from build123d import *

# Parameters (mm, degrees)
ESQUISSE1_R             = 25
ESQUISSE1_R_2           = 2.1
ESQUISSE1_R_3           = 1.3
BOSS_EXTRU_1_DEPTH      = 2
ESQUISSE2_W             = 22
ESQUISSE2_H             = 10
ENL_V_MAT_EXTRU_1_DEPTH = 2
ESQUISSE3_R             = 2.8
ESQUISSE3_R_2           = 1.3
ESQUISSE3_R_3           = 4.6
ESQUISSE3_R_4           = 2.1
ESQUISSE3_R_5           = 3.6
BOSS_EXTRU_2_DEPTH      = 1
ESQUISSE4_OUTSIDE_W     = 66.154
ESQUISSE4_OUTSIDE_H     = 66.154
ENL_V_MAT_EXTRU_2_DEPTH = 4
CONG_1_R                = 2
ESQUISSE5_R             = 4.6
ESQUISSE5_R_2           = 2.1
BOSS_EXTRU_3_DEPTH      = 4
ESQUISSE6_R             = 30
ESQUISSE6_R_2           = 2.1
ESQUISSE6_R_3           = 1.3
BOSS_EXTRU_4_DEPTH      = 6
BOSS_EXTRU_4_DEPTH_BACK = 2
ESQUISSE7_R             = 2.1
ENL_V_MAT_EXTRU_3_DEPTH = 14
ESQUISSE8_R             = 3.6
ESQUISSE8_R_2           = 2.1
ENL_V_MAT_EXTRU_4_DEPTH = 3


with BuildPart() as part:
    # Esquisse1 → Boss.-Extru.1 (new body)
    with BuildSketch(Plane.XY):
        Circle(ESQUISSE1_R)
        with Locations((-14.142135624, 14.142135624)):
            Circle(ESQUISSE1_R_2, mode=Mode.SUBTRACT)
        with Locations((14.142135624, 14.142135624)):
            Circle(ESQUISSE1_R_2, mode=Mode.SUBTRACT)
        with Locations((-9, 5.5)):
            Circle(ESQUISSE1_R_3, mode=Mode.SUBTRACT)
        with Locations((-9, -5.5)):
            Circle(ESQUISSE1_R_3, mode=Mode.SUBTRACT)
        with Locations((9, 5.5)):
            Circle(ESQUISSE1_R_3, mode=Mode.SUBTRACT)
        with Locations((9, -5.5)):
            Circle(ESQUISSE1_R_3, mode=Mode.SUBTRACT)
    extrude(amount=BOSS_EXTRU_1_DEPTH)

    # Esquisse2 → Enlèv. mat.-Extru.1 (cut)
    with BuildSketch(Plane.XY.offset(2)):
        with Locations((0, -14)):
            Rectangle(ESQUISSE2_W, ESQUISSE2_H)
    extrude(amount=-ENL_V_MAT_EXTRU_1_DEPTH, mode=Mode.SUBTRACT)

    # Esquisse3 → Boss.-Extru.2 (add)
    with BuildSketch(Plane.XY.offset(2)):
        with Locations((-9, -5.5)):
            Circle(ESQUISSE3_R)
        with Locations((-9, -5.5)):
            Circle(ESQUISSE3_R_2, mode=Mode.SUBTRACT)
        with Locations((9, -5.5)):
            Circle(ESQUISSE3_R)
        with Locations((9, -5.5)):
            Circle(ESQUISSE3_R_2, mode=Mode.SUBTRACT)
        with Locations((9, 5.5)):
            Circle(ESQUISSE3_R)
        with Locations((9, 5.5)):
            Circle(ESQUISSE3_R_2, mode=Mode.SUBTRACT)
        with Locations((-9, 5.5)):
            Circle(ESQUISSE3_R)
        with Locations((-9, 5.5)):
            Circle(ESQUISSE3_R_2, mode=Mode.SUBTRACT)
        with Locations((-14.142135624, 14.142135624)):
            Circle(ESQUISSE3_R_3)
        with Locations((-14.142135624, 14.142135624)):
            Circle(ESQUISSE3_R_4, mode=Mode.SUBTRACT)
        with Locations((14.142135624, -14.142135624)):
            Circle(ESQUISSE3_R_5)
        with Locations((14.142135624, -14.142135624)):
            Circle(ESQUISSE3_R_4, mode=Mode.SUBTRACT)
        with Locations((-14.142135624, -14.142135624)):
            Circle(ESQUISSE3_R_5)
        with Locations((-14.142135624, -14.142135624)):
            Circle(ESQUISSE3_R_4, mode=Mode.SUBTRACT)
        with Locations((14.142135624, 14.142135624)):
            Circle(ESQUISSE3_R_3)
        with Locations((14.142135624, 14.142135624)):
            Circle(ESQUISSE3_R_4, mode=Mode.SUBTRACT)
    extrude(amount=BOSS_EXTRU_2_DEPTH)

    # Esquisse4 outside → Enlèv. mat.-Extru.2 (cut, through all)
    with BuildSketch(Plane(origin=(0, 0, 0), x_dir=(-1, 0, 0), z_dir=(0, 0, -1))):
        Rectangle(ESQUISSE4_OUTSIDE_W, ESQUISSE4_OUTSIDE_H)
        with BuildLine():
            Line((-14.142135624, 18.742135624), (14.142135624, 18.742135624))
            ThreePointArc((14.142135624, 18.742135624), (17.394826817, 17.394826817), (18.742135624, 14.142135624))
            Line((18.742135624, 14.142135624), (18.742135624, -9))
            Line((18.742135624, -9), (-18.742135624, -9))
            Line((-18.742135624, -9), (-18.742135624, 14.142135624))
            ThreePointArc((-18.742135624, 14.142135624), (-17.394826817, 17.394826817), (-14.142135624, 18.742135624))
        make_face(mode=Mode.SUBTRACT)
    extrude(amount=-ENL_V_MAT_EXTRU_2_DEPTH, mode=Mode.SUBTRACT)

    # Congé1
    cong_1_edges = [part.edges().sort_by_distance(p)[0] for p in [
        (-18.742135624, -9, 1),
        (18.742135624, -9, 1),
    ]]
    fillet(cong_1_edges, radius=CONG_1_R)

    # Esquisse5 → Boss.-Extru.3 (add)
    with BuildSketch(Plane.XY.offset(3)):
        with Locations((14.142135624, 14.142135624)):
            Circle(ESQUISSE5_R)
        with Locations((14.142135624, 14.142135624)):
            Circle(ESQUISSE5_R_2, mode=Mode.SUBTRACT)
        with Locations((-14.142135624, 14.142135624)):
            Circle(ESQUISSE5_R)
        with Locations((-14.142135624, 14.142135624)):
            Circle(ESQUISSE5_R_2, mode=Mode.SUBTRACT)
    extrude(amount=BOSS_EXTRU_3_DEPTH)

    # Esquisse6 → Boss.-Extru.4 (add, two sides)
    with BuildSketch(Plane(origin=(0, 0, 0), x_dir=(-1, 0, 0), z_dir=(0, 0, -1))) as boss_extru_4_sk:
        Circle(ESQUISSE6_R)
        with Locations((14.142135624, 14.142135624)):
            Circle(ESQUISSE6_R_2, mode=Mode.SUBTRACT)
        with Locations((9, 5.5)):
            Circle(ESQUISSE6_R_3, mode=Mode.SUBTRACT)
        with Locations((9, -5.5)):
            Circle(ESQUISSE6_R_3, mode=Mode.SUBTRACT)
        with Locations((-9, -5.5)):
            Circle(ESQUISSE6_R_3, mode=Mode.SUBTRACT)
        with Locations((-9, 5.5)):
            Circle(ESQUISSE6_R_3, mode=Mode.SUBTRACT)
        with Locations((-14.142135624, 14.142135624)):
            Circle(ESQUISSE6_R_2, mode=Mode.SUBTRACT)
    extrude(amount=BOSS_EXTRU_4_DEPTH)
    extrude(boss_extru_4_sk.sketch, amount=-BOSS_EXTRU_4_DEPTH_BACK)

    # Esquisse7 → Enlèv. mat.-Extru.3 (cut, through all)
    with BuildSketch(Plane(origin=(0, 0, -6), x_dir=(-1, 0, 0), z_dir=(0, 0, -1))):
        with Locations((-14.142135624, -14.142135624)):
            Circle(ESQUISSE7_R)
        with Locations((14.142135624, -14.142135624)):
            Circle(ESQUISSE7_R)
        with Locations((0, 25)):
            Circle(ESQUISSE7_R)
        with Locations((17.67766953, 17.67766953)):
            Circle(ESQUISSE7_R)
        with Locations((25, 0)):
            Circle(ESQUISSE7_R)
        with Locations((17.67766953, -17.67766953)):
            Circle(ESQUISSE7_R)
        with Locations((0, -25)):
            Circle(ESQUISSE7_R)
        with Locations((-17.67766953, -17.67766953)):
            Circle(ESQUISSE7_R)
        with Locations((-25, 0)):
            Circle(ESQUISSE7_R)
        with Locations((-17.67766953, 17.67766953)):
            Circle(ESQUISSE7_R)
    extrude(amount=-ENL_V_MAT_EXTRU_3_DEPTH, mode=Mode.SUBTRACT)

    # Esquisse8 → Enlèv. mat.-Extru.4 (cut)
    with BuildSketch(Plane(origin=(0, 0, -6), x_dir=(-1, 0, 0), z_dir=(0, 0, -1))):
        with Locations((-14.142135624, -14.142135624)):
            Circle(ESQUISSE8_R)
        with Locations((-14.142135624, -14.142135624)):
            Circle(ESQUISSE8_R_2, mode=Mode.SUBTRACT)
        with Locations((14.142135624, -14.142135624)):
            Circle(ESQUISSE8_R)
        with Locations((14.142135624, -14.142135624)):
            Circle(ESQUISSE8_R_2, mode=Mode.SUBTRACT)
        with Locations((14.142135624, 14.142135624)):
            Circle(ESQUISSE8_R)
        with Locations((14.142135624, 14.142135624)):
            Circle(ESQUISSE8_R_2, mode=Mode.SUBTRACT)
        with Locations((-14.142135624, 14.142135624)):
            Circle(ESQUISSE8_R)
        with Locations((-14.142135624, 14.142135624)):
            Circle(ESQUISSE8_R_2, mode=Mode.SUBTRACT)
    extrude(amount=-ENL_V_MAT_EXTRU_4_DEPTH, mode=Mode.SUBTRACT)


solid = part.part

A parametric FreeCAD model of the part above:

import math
import FreeCAD as App
import Part
import Sketcher
from FreeCAD import Vector
Q = App.Units.Quantity


def edges_at(feature, points):
    """Names of the edges that pass closest to the given points."""
    edges = feature.Shape.Edges
    near = lambda p: min(range(len(edges)), key=lambda i: edges[i].distToShape(Part.Vertex(*p))[0])
    return sorted({f"Edge{near(p) + 1}" for p in points})


def add_polygon(sketch, points):
    """Adds a closed chain of lines whose ends are joined by coincident constraints."""
    first, n = sketch.GeometryCount, len(points)
    for a, b in zip(points, points[1:] + points[:1]):
        sketch.addGeometry(Part.LineSegment(App.Vector(*a, 0), App.Vector(*b, 0)), False)
    for i in range(n):
        sketch.addConstraint(Sketcher.Constraint("Coincident", first + i, 2, first + (i + 1) % n, 1))

doc = App.newDocument("Part")
body = doc.addObject("PartDesign::Body", "Body")

# Sketch on XY plane
sketch1 = doc.addObject("Sketcher::SketchObject", "Sketch")
body.addObject(sketch1)
sketch1.AttachmentSupport = (doc.XY_Plane, [""])
sketch1.MapMode = "FlatFace"
sketch1.addGeometry([
    Part.Circle(Vector(0, 0, 0), Vector(0, 0, 1), 25),  # 0
    Part.Circle(Vector(-9, -5.5, 0), Vector(0, 0, 1), 1.3),  # 1
    Part.Circle(Vector(9, -5.5, 0), Vector(0, 0, 1), 1.3),  # 2
    Part.Circle(Vector(-9, 5.5, 0), Vector(0, 0, 1), 1.3),  # 3
    Part.Circle(Vector(-14.1, 14.1, 0), Vector(0, 0, 1), 2.1),  # 4
    Part.Circle(Vector(9, 5.5, 0), Vector(0, 0, 1), 1.3),  # 5
    Part.Circle(Vector(14.1, 14.1, 0), Vector(0, 0, 1), 2.1),  # 6
], False)
sketch1.addConstraint([
    Sketcher.Constraint("Coincident", 0, 3, -1, 1),
    Sketcher.Constraint("Equal", 1, 2),
    Sketcher.Constraint("Equal", 2, 3),
    Sketcher.Constraint("Equal", 3, 5),
    Sketcher.Constraint("Equal", 4, 6),
    Sketcher.Constraint("Symmetric", 2, 3, 3, 3, -1, 1),
    Sketcher.Constraint("Symmetric", 1, 3, 5, 3, -1, 1),
    Sketcher.Constraint("Symmetric", 1, 3, 2, 3, -2),
    Sketcher.Constraint("Symmetric", 4, 3, 6, 3, -2),
    Sketcher.Constraint("Diameter", 0, Q("50 mm")),
    Sketcher.Constraint("Diameter", 1, Q("2.6 mm")),
    Sketcher.Constraint("Diameter", 4, Q("4.2 mm")),
    Sketcher.Constraint("DistanceX", 1, 3, -1, 1, Q("9 mm")),
    Sketcher.Constraint("DistanceY", 1, 3, 3, 3, Q("11 mm")),
    Sketcher.Constraint("DistanceX", 4, 3, 6, 3, Q("28.284271 mm")),
    Sketcher.Constraint("DistanceY", -1, 1, 4, 3, Q("14.142136 mm")),
])
pad1 = doc.addObject("PartDesign::Pad", "Pad")
body.addObject(pad1)
pad1.Profile = sketch1
pad1.Length = 2

# Sketch on XY plane
sketch2 = doc.addObject("Sketcher::SketchObject", "Sketch001")
body.addObject(sketch2)
sketch2.AttachmentSupport = (doc.XY_Plane, [""])
sketch2.MapMode = "FlatFace"
sketch2.AttachmentOffset = App.Placement(Vector(0, 0, 2), App.Rotation())
add_polygon(sketch2, [(-11, -9), (-11, -19), (11, -19), (11, -9)])  # lines 0-3
sketch2.addConstraint([
    Sketcher.Constraint("Vertical", 0),
    Sketcher.Constraint("Horizontal", 1),
    Sketcher.Constraint("Vertical", 2),
    Sketcher.Constraint("Horizontal", 3),
    Sketcher.Constraint("DistanceX", 1, 1, 1, 2, Q("22 mm")),
    Sketcher.Constraint("DistanceY", 0, 2, 0, 1, Q("10 mm")),
    Sketcher.Constraint("DistanceX", 0, 2, -1, 1, Q("11 mm")),
    Sketcher.Constraint("DistanceY", 0, 2, -1, 1, Q("19 mm")),
])
pocket1 = doc.addObject("PartDesign::Pocket", "Pocket")
body.addObject(pocket1)
pocket1.Profile = sketch2
pocket1.Length = 2

# Sketch on XY plane
sketch3 = doc.addObject("Sketcher::SketchObject", "Sketch002")
body.addObject(sketch3)
sketch3.AttachmentSupport = (doc.XY_Plane, [""])
sketch3.MapMode = "FlatFace"
sketch3.AttachmentOffset = App.Placement(Vector(0, 0, 2), App.Rotation())
sketch3.addGeometry([
    Part.Circle(Vector(-9, -5.5, 0), Vector(0, 0, 1), 2.8),  # 0
    Part.Circle(Vector(-9, -5.5, 0), Vector(0, 0, 1), 1.3),  # 1
    Part.Circle(Vector(9, -5.5, 0), Vector(0, 0, 1), 2.8),  # 2
    Part.Circle(Vector(9, -5.5, 0), Vector(0, 0, 1), 1.3),  # 3
    Part.Circle(Vector(9, 5.5, 0), Vector(0, 0, 1), 2.8),  # 4
    Part.Circle(Vector(9, 5.5, 0), Vector(0, 0, 1), 1.3),  # 5
    Part.Circle(Vector(-9, 5.5, 0), Vector(0, 0, 1), 2.8),  # 6
    Part.Circle(Vector(-9, 5.5, 0), Vector(0, 0, 1), 1.3),  # 7
    Part.Circle(Vector(-14.1, 14.1, 0), Vector(0, 0, 1), 4.6),  # 8
    Part.Circle(Vector(-14.1, 14.1, 0), Vector(0, 0, 1), 2.1),  # 9
    Part.Circle(Vector(14.1, -14.1, 0), Vector(0, 0, 1), 3.6),  # 10
    Part.Circle(Vector(14.1, -14.1, 0), Vector(0, 0, 1), 2.1),  # 11
    Part.Circle(Vector(-14.1, -14.1, 0), Vector(0, 0, 1), 3.6),  # 12
    Part.Circle(Vector(-14.1, -14.1, 0), Vector(0, 0, 1), 2.1),  # 13
    Part.Circle(Vector(14.1, 14.1, 0), Vector(0, 0, 1), 4.6),  # 14
    Part.Circle(Vector(14.1, 14.1, 0), Vector(0, 0, 1), 2.1),  # 15
], False)
sketch3.addConstraint([
    Sketcher.Constraint("Coincident", 1, 3, 0, 3),
    Sketcher.Constraint("Coincident", 3, 3, 2, 3),
    Sketcher.Constraint("Coincident", 5, 3, 4, 3),
    Sketcher.Constraint("Coincident", 7, 3, 6, 3),
    Sketcher.Constraint("Coincident", 9, 3, 8, 3),
    Sketcher.Constraint("Coincident", 11, 3, 10, 3),
    Sketcher.Constraint("Coincident", 13, 3, 12, 3),
    Sketcher.Constraint("Coincident", 15, 3, 14, 3),
    Sketcher.Constraint("Equal", 0, 2),
    Sketcher.Constraint("Equal", 1, 3),
    Sketcher.Constraint("Equal", 2, 4),
    Sketcher.Constraint("Equal", 3, 5),
    Sketcher.Constraint("Equal", 4, 6),
    Sketcher.Constraint("Equal", 5, 7),
    Sketcher.Constraint("Equal", 9, 11),
    Sketcher.Constraint("Equal", 10, 12),
    Sketcher.Constraint("Equal", 11, 13),
    Sketcher.Constraint("Equal", 8, 14),
    Sketcher.Constraint("Equal", 13, 15),
    Sketcher.Constraint("Symmetric", 0, 3, 4, 3, -1, 1),
    Sketcher.Constraint("Symmetric", 2, 3, 6, 3, -1, 1),
    Sketcher.Constraint("Symmetric", 8, 3, 10, 3, -1, 1),
    Sketcher.Constraint("Symmetric", 12, 3, 14, 3, -1, 1),
    Sketcher.Constraint("Symmetric", 0, 3, 2, 3, -2),
    Sketcher.Constraint("Symmetric", 10, 3, 12, 3, -2),
    Sketcher.Constraint("Diameter", 0, Q("5.6 mm")),
    Sketcher.Constraint("Diameter", 1, Q("2.6 mm")),
    Sketcher.Constraint("Diameter", 8, Q("9.2 mm")),
    Sketcher.Constraint("Diameter", 9, Q("4.2 mm")),
    Sketcher.Constraint("Diameter", 10, Q("7.2 mm")),
    Sketcher.Constraint("DistanceX", 0, 3, -1, 1, Q("9 mm")),
    Sketcher.Constraint("DistanceY", 2, 3, 4, 3, Q("11 mm")),
    Sketcher.Constraint("DistanceX", 8, 3, -1, 1, Q("14.142136 mm")),
    Sketcher.Constraint("DistanceY", -1, 1, 8, 3, Q("14.142136 mm")),
])
pad2 = doc.addObject("PartDesign::Pad", "Pad001")
body.addObject(pad2)
pad2.Profile = sketch3
pad2.Length = 1

# Sketch on XY plane
sketch4 = doc.addObject("Sketcher::SketchObject", "Sketch003")
body.addObject(sketch4)
sketch4.AttachmentSupport = (doc.XY_Plane, [""])
sketch4.MapMode = "FlatFace"
add_polygon(sketch4, [(33.1, 33.1), (33.1, -33.1), (-33.1, -33.1), (-33.1, 33.1)])  # lines 0-3
sketch4.addGeometry(Part.ArcOfCircle(Part.Circle(Vector(14.1, 14.1, 0), Vector(0, 0, 1), 4.6), math.radians(0), math.radians(90)), False)  # 4
sketch4.addGeometry(Part.LineSegment(Vector(14.1, 18.7, 0), Vector(-14.1, 18.7, 0)), False)  # 5
sketch4.addGeometry(Part.ArcOfCircle(Part.Circle(Vector(-14.1, 14.1, 0), Vector(0, 0, 1), 4.6), math.radians(90), math.radians(180)), False)  # 6
sketch4.addGeometry(Part.LineSegment(Vector(-18.7, 14.1, 0), Vector(-18.7, -9, 0)), False)  # 7
sketch4.addGeometry(Part.LineSegment(Vector(-18.7, -9, 0), Vector(18.7, -9, 0)), False)  # 8
sketch4.addGeometry(Part.LineSegment(Vector(18.7, -9, 0), Vector(18.7, 14.1, 0)), False)  # 9
sketch4.addConstraint([
    Sketcher.Constraint("Tangent", 4, 2, 5, 1),
    Sketcher.Constraint("Tangent", 5, 2, 6, 1),
    Sketcher.Constraint("Tangent", 6, 2, 7, 1),
    Sketcher.Constraint("Coincident", 7, 2, 8, 1),
    Sketcher.Constraint("Coincident", 8, 2, 9, 1),
    Sketcher.Constraint("Tangent", 9, 2, 4, 1),
    Sketcher.Constraint("Vertical", 0),
    Sketcher.Constraint("Horizontal", 1),
    Sketcher.Constraint("Vertical", 2),
    Sketcher.Constraint("Horizontal", 3),
    Sketcher.Constraint("Horizontal", 5),
    Sketcher.Constraint("Vertical", 7),
    Sketcher.Constraint("Horizontal", 8),
    Sketcher.Constraint("Vertical", 9),
    Sketcher.Constraint("Equal", 4, 6),
    Sketcher.Constraint("Symmetric", 0, 2, 2, 2, -1, 1),
    Sketcher.Constraint("Equal", 3, 0),
    Sketcher.Constraint("Radius", 4, Q("4.6 mm")),
    Sketcher.Constraint("DistanceY", 7, 2, -1, 1, Q("9 mm")),
    Sketcher.Constraint("DistanceX", 1, 2, 1, 1, Q("66.154 mm")),
    Sketcher.Constraint("DistanceX", 5, 2, 5, 1, Q("28.284271 mm")),
    Sketcher.Constraint("DistanceY", 7, 2, 7, 1, Q("23.142136 mm")),
    Sketcher.Constraint("DistanceX", -1, 1, 4, 3, Q("14.142136 mm")),
])
pocket2 = doc.addObject("PartDesign::Pocket", "Pocket001")
body.addObject(pocket2)
pocket2.Profile = sketch4
pocket2.Type = "ThroughAll"
pocket2.Reversed = True
doc.recompute()

fillet = doc.addObject("PartDesign::Fillet", "Fillet")
body.addObject(fillet)
fillet.Base = (pocket2, edges_at(pocket2, [(-18.742, -9, 1), (18.742, -9, 1)]))
fillet.Radius = 2

# Sketch on XY plane
sketch5 = doc.addObject("Sketcher::SketchObject", "Sketch004")
body.addObject(sketch5)
sketch5.AttachmentSupport = (doc.XY_Plane, [""])
sketch5.MapMode = "FlatFace"
sketch5.AttachmentOffset = App.Placement(Vector(0, 0, 3), App.Rotation())
sketch5.addGeometry([
    Part.Circle(Vector(14.1, 14.1, 0), Vector(0, 0, 1), 4.6),
    Part.Circle(Vector(14.1, 14.1, 0), Vector(0, 0, 1), 2.1),
    Part.Circle(Vector(-14.1, 14.1, 0), Vector(0, 0, 1), 4.6),
    Part.Circle(Vector(-14.1, 14.1, 0), Vector(0, 0, 1), 2.1),
], False)
sketch5.addConstraint([
    Sketcher.Constraint("Coincident", 1, 3, 0, 3),
    Sketcher.Constraint("Coincident", 3, 3, 2, 3),
    Sketcher.Constraint("Equal", 0, 2),
    Sketcher.Constraint("Equal", 1, 3),
    Sketcher.Constraint("Symmetric", 0, 3, 2, 3, -2),
    Sketcher.Constraint("Diameter", 0, Q("9.2 mm")),
    Sketcher.Constraint("Diameter", 1, Q("4.2 mm")),
    Sketcher.Constraint("DistanceX", 2, 3, 0, 3, Q("28.284271 mm")),
    Sketcher.Constraint("DistanceY", -1, 1, 0, 3, Q("14.142136 mm")),
])
pad3 = doc.addObject("PartDesign::Pad", "Pad002")
body.addObject(pad3)
pad3.Profile = sketch5
pad3.Length = 4

# Sketch on XY plane
sketch6 = doc.addObject("Sketcher::SketchObject", "Sketch005")
body.addObject(sketch6)
sketch6.AttachmentSupport = (doc.XY_Plane, [""])
sketch6.MapMode = "FlatFace"
sketch6.addGeometry([
    Part.Circle(Vector(0, 0, 0), Vector(0, 0, 1), 30),  # 0
    Part.Circle(Vector(9, -5.5, 0), Vector(0, 0, 1), 1.3),  # 1
    Part.Circle(Vector(-9, -5.5, 0), Vector(0, 0, 1), 1.3),  # 2
    Part.Circle(Vector(9, 5.5, 0), Vector(0, 0, 1), 1.3),  # 3
    Part.Circle(Vector(14.1, 14.1, 0), Vector(0, 0, 1), 2.1),  # 4
    Part.Circle(Vector(-9, 5.5, 0), Vector(0, 0, 1), 1.3),  # 5
    Part.Circle(Vector(-14.1, 14.1, 0), Vector(0, 0, 1), 2.1),  # 6
], False)
sketch6.addConstraint([
    Sketcher.Constraint("Coincident", 0, 3, -1, 1),
    Sketcher.Constraint("Equal", 1, 2),
    Sketcher.Constraint("Equal", 2, 3),
    Sketcher.Constraint("Equal", 3, 5),
    Sketcher.Constraint("Equal", 4, 6),
    Sketcher.Constraint("Symmetric", 2, 3, 3, 3, -1, 1),
    Sketcher.Constraint("Symmetric", 1, 3, 5, 3, -1, 1),
    Sketcher.Constraint("Symmetric", 1, 3, 2, 3, -2),
    Sketcher.Constraint("Symmetric", 4, 3, 6, 3, -2),
    Sketcher.Constraint("Diameter", 0, Q("60 mm")),
    Sketcher.Constraint("Diameter", 1, Q("2.6 mm")),
    Sketcher.Constraint("Diameter", 4, Q("4.2 mm")),
    Sketcher.Constraint("DistanceX", -1, 1, 1, 3, Q("9 mm")),
    Sketcher.Constraint("DistanceY", 1, 3, 3, 3, Q("11 mm")),
    Sketcher.Constraint("DistanceX", 6, 3, 4, 3, Q("28.284271 mm")),
    Sketcher.Constraint("DistanceY", -1, 1, 4, 3, Q("14.142136 mm")),
])
pad4 = doc.addObject("PartDesign::Pad", "Pad003")
body.addObject(pad4)
pad4.Profile = sketch6
pad4.Type = "TwoLengths"
pad4.Length = 6
pad4.Length2 = 2
pad4.Reversed = True

# Sketch on XY plane
sketch7 = doc.addObject("Sketcher::SketchObject", "Sketch006")
body.addObject(sketch7)
sketch7.AttachmentSupport = (doc.XY_Plane, [""])
sketch7.MapMode = "FlatFace"
sketch7.AttachmentOffset = App.Placement(Vector(0, 0, -6), App.Rotation())
sketch7.addGeometry([
    Part.Circle(Vector(14.1, -14.1, 0), Vector(0, 0, 1), 2.1),  # 0
    Part.Circle(Vector(-14.1, -14.1, 0), Vector(0, 0, 1), 2.1),  # 1
    Part.Circle(Vector(0, 25, 0), Vector(0, 0, 1), 2.1),  # 2
    Part.Circle(Vector(-17.7, 17.7, 0), Vector(0, 0, 1), 2.1),  # 3
    Part.Circle(Vector(-25, 0, 0), Vector(0, 0, 1), 2.1),  # 4
    Part.Circle(Vector(-17.7, -17.7, 0), Vector(0, 0, 1), 2.1),  # 5
    Part.Circle(Vector(0, -25, 0), Vector(0, 0, 1), 2.1),  # 6
    Part.Circle(Vector(17.7, -17.7, 0), Vector(0, 0, 1), 2.1),  # 7
    Part.Circle(Vector(25, 0, 0), Vector(0, 0, 1), 2.1),  # 8
    Part.Circle(Vector(17.7, 17.7, 0), Vector(0, 0, 1), 2.1),  # 9
], False)
sketch7.addConstraint([
    Sketcher.Constraint("Equal", 0, 1),
    Sketcher.Constraint("Equal", 1, 2),
    Sketcher.Constraint("Equal", 2, 3),
    Sketcher.Constraint("Equal", 3, 4),
    Sketcher.Constraint("Equal", 4, 5),
    Sketcher.Constraint("Equal", 5, 6),
    Sketcher.Constraint("Equal", 6, 7),
    Sketcher.Constraint("Equal", 7, 8),
    Sketcher.Constraint("Equal", 8, 9),
    Sketcher.Constraint("Symmetric", 2, 3, 6, 3, -1, 1),
    Sketcher.Constraint("Symmetric", 3, 3, 7, 3, -1, 1),
    Sketcher.Constraint("Symmetric", 4, 3, 8, 3, -1, 1),
    Sketcher.Constraint("Symmetric", 5, 3, 9, 3, -1, 1),
    Sketcher.Constraint("Symmetric", 0, 3, 1, 3, -2),
    Sketcher.Constraint("Symmetric", 5, 3, 7, 3, -2),
    Sketcher.Constraint("PointOnObject", 2, 3, -2),
    Sketcher.Constraint("PointOnObject", 4, 3, -1),
    Sketcher.Constraint("Diameter", 0, Q("4.2 mm")),
    Sketcher.Constraint("DistanceY", -1, 1, 2, 3, Q("25 mm")),
    Sketcher.Constraint("DistanceX", 4, 3, -1, 1, Q("25 mm")),
    Sketcher.Constraint("DistanceX", 3, 3, -1, 1, Q("17.67767 mm")),
    Sketcher.Constraint("DistanceY", -1, 1, 3, 3, Q("17.67767 mm")),
    Sketcher.Constraint("DistanceX", 1, 3, 0, 3, Q("28.284271 mm")),
    Sketcher.Constraint("DistanceY", 0, 3, -1, 1, Q("14.142136 mm")),
])
pocket3 = doc.addObject("PartDesign::Pocket", "Pocket002")
body.addObject(pocket3)
pocket3.Profile = sketch7
pocket3.Type = "ThroughAll"
pocket3.Reversed = True

# Sketch on XY plane
sketch8 = doc.addObject("Sketcher::SketchObject", "Sketch007")
body.addObject(sketch8)
sketch8.AttachmentSupport = (doc.XY_Plane, [""])
sketch8.MapMode = "FlatFace"
sketch8.AttachmentOffset = App.Placement(Vector(0, 0, -6), App.Rotation())
sketch8.addGeometry([
    Part.Circle(Vector(14.1, -14.1, 0), Vector(0, 0, 1), 3.6),  # 0
    Part.Circle(Vector(14.1, -14.1, 0), Vector(0, 0, 1), 2.1),  # 1
    Part.Circle(Vector(-14.1, -14.1, 0), Vector(0, 0, 1), 3.6),  # 2
    Part.Circle(Vector(-14.1, -14.1, 0), Vector(0, 0, 1), 2.1),  # 3
    Part.Circle(Vector(-14.1, 14.1, 0), Vector(0, 0, 1), 3.6),  # 4
    Part.Circle(Vector(-14.1, 14.1, 0), Vector(0, 0, 1), 2.1),  # 5
    Part.Circle(Vector(14.1, 14.1, 0), Vector(0, 0, 1), 3.6),  # 6
    Part.Circle(Vector(14.1, 14.1, 0), Vector(0, 0, 1), 2.1),  # 7
], False)
sketch8.addConstraint([
    Sketcher.Constraint("Coincident", 1, 3, 0, 3),
    Sketcher.Constraint("Coincident", 3, 3, 2, 3),
    Sketcher.Constraint("Coincident", 5, 3, 4, 3),
    Sketcher.Constraint("Coincident", 7, 3, 6, 3),
    Sketcher.Constraint("Equal", 0, 2),
    Sketcher.Constraint("Equal", 1, 3),
    Sketcher.Constraint("Equal", 2, 4),
    Sketcher.Constraint("Equal", 3, 5),
    Sketcher.Constraint("Equal", 4, 6),
    Sketcher.Constraint("Equal", 5, 7),
    Sketcher.Constraint("Symmetric", 0, 3, 4, 3, -1, 1),
    Sketcher.Constraint("Symmetric", 2, 3, 6, 3, -1, 1),
    Sketcher.Constraint("Symmetric", 0, 3, 2, 3, -2),
    Sketcher.Constraint("Diameter", 0, Q("7.2 mm")),
    Sketcher.Constraint("Diameter", 1, Q("4.2 mm")),
    Sketcher.Constraint("DistanceX", 2, 3, 0, 3, Q("28.284271 mm")),
    Sketcher.Constraint("DistanceY", 2, 3, 4, 3, Q("28.284271 mm")),
])
pocket4 = doc.addObject("PartDesign::Pocket", "Pocket003")
body.addObject(pocket4)
pocket4.Profile = sketch8
pocket4.Length = 3
pocket4.Reversed = True

doc.recompute()
